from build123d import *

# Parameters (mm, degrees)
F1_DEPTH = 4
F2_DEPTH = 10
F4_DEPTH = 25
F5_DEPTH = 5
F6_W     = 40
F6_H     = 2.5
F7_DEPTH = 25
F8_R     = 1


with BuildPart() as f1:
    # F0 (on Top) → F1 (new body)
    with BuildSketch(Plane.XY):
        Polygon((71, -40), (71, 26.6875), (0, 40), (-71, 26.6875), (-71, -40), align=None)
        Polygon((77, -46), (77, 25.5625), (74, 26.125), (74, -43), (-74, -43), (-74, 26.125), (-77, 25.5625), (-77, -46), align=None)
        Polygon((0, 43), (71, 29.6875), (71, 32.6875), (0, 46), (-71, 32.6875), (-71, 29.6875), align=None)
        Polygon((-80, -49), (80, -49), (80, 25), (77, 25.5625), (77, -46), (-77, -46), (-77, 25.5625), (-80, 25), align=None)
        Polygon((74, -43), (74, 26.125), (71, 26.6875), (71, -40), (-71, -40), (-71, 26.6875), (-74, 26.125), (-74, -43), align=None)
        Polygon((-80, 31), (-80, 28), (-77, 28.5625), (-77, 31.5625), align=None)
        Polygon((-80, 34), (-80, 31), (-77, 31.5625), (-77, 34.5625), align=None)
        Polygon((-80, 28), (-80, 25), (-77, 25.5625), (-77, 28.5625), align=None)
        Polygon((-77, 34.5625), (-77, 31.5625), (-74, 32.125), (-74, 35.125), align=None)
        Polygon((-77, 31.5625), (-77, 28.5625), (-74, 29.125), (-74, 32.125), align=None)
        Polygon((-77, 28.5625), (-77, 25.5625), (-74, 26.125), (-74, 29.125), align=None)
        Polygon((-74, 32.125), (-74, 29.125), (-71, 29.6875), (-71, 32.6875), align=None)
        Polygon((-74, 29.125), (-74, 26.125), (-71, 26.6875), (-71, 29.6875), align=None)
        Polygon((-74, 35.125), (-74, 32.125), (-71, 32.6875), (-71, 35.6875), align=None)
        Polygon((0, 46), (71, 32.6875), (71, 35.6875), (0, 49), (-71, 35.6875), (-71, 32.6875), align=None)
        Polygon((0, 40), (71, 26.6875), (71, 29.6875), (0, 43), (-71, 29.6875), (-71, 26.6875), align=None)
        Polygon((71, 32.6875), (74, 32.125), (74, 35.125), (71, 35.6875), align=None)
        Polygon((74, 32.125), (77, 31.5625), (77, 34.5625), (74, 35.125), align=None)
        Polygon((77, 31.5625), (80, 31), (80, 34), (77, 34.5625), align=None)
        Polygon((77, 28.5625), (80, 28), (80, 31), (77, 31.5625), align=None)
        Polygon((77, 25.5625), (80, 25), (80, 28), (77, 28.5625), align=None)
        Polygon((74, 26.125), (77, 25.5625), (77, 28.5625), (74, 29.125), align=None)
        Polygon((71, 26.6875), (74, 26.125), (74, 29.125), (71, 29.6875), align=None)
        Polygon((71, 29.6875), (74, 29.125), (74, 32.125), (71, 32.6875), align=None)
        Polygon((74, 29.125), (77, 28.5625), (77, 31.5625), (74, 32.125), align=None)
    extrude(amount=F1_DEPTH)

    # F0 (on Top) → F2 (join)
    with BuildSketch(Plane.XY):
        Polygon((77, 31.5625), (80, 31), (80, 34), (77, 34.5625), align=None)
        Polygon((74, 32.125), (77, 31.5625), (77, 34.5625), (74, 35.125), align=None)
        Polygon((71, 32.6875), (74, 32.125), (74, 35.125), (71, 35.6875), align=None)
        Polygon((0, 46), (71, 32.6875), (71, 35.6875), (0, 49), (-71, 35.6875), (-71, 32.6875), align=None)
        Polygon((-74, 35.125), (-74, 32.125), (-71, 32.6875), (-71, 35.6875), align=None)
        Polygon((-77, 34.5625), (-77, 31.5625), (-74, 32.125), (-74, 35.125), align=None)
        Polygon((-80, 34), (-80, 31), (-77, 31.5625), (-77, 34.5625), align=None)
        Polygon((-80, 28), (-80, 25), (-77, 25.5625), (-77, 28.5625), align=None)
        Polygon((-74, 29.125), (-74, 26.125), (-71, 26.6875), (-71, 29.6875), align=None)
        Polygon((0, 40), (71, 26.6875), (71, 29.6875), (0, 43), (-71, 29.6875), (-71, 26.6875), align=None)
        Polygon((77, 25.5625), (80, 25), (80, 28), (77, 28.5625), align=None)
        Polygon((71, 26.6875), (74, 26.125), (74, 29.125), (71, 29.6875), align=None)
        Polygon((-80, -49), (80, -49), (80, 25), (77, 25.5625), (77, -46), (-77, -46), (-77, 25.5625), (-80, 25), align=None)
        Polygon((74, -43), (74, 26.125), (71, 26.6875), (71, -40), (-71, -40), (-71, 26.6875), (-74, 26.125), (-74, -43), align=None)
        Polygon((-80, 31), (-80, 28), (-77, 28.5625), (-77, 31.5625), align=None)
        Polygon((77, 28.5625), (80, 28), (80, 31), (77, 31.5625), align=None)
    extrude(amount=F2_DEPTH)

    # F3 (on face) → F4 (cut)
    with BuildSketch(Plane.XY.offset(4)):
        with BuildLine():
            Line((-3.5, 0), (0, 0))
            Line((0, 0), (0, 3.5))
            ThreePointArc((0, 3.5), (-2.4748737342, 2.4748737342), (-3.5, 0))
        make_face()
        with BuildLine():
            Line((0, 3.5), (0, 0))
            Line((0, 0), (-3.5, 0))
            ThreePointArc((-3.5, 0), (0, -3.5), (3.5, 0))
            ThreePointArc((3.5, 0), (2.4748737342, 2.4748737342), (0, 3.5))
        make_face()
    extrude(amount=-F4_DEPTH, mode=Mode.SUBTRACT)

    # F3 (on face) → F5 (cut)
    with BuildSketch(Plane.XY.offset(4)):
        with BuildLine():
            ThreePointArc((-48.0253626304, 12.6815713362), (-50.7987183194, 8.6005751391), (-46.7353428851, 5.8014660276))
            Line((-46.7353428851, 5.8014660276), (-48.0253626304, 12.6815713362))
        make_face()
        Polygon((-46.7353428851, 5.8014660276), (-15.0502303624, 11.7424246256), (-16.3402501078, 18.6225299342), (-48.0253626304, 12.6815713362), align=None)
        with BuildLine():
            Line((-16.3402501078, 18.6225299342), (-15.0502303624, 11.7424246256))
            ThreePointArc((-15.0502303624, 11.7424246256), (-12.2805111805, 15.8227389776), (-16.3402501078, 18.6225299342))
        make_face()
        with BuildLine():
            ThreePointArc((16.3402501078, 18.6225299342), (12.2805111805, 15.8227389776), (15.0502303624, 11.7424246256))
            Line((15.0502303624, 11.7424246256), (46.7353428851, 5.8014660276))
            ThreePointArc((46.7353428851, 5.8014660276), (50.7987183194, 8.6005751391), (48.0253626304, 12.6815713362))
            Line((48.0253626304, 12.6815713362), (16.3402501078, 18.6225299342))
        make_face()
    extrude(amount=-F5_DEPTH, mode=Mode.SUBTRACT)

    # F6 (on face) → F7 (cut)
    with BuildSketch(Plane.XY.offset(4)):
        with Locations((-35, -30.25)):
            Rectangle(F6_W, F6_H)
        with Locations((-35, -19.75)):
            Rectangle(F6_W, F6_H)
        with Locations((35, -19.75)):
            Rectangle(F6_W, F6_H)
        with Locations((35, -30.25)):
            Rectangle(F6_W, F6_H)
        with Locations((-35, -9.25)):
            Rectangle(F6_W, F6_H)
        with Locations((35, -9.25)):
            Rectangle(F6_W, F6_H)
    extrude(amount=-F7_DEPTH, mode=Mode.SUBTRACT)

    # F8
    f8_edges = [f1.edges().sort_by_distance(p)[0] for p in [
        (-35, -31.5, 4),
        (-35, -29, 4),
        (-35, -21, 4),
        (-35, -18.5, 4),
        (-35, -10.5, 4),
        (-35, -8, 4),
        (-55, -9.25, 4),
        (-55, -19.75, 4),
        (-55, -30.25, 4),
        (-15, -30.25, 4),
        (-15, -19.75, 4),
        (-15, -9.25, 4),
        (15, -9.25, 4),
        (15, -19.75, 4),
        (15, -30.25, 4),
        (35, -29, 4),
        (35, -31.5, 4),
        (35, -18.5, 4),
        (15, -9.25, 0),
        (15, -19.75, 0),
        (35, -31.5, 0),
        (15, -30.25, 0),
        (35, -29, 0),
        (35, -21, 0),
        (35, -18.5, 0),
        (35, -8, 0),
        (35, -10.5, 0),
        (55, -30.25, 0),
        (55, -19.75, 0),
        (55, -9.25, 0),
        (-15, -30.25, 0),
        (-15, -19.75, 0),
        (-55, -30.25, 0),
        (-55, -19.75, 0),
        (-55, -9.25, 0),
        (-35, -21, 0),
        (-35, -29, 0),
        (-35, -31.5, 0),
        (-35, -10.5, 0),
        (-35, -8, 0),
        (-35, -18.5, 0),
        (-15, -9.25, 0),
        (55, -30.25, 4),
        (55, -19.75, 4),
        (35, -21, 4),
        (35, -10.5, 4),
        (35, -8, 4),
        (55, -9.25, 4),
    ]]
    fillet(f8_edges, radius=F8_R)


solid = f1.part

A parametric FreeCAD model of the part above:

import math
import FreeCAD as App
import Part
import Sketcher


def edges_at(feature, points):
    """Names of the edges that pass closest to the given points."""
    edges = feature.Shape.Edges
    near = lambda p: min(range(len(edges)), key=lambda i: edges[i].distToShape(Part.Vertex(*p))[0])
    return sorted({f"Edge{near(p) + 1}" for p in points})


def add_polygon(sketch, points):
    """Adds a closed chain of lines whose ends are joined by coincident constraints."""
    first, n = sketch.GeometryCount, len(points)
    for a, b in zip(points, points[1:] + points[:1]):
        sketch.addGeometry(Part.LineSegment(App.Vector(*a, 0), App.Vector(*b, 0)), False)
    for i in range(n):
        sketch.addConstraint(Sketcher.Constraint("Coincident", first + i, 2, first + (i + 1) % n, 1))

doc = App.newDocument("Part")
body = doc.addObject("PartDesign::Body", "Body")

sketch1 = body.newObject("Sketcher::SketchObject", "Sketch")
sketch1.AttachmentSupport = (doc.getObject("XY_Plane"), [""])
sketch1.MapMode = "FlatFace"
add_polygon(sketch1, [(0, 49), (-80, 34), (-80, -49), (80, -49), (80, 34)])
sketch1.addConstraint([
    Sketcher.Constraint("Vertical", 1),
    Sketcher.Constraint("Horizontal", 2),
    Sketcher.Constraint("Vertical", 3),
    Sketcher.Constraint("Symmetric", 0, 2, 3, 2, -2),
    Sketcher.Constraint("PointOnObject", 4, 2, -2),
    Sketcher.Constraint("DistanceX", 2, 1, 2, 2, 160.0),
    Sketcher.Constraint("DistanceY", 1, 2, 1, 1, 83.0),
    Sketcher.Constraint("DistanceY", -1, 1, 0, 2, 34.0),
    Sketcher.Constraint("DistanceY", -1, 1, 4, 2, 49.0),
])
pad1 = body.newObject("PartDesign::Pad", "Pad")
pad1.Profile = sketch1
pad1.Length = 4

sketch2 = body.newObject("Sketcher::SketchObject", "Sketch001")
sketch2.AttachmentSupport = (doc.getObject("XY_Plane"), [""])
sketch2.MapMode = "FlatFace"
add_polygon(sketch2, [(80, 34), (0, 49), (-80, 34), (-80, -49), (80, -49)])
add_polygon(sketch2, [(77, -46), (-77, -46), (-77, 32), (0, 46), (77, 32)])
add_polygon(sketch2, [(-74, 29), (-74, -43), (74, -43), (74, 29), (0, 43)])
add_polygon(sketch2, [(-71, 27), (0, 40), (71, 27), (71, -40), (-71, -40)])
sketch2.addConstraint([
    Sketcher.Constraint("Vertical", 2),
    Sketcher.Constraint("Horizontal", 3),
    Sketcher.Constraint("Vertical", 4),
    Sketcher.Constraint("Horizontal", 5),
    Sketcher.Constraint("Vertical", 6),
    Sketcher.Constraint("Vertical", 9),
    Sketcher.Constraint("Vertical", 10),
    Sketcher.Constraint("Horizontal", 11),
    Sketcher.Constraint("Vertical", 12),
    Sketcher.Constraint("Vertical", 17),
    Sketcher.Constraint("Horizontal", 18),
    Sketcher.Constraint("Vertical", 19),
    Sketcher.Constraint("Symmetric", 1, 2, 4, 2, -2),
    Sketcher.Constraint("Symmetric", 6, 2, 8, 2, -2),
    Sketcher.Constraint("Symmetric", 12, 2, 14, 2, -2),
    Sketcher.Constraint("Symmetric", 16, 2, 19, 2, -2),
    Sketcher.Constraint("PointOnObject", 0, 2, -2),
    Sketcher.Constraint("PointOnObject", 7, 2, -2),
    Sketcher.Constraint("PointOnObject", 13, 2, -2),
    Sketcher.Constraint("PointOnObject", 15, 2, -2),
    Sketcher.Constraint("Parallel", 1, 7),
    Sketcher.Constraint("Parallel", 8, 13),
    Sketcher.Constraint("Parallel", 14, 15),
    Sketcher.Constraint("DistanceX", 3, 1, 3, 2, 160.0),
    Sketcher.Constraint("DistanceX", 5, 2, 5, 1, 154.0),
    Sketcher.Constraint("DistanceX", 11, 1, 11, 2, 148.0),
    Sketcher.Constraint("DistanceX", 18, 2, 18, 1, 142.0),
    Sketcher.Constraint("DistanceY", 2, 2, 2, 1, 83.0),
    Sketcher.Constraint("DistanceY", -1, 1, 0, 2, 49.0),
    Sketcher.Constraint("DistanceY", -1, 1, 1, 2, 34.0),
    Sketcher.Constraint("DistanceY", 5, 2, -1, 1, 46.0),
    Sketcher.Constraint("DistanceY", -1, 1, 7, 2, 46.0),
    Sketcher.Constraint("DistanceY", 10, 2, -1, 1, 43.0),
    Sketcher.Constraint("DistanceY", -1, 1, 13, 2, 43.0),
    Sketcher.Constraint("DistanceY", -1, 1, 15, 2, 40.0),
    Sketcher.Constraint("DistanceY", 17, 2, -1, 1, 40.0),
])
pad2 = body.newObject("PartDesign::Pad", "Pad001")
pad2.Profile = sketch2
pad2.Length = 10

sketch3 = body.newObject("Sketcher::SketchObject", "Sketch002")
sketch3.AttachmentSupport = (doc.getObject("XY_Plane"), [""])
sketch3.MapMode = "FlatFace"
sketch3.AttachmentOffset = App.Placement(App.Vector(0, 0, 4), App.Rotation())
sketch3.addGeometry([
    Part.ArcOfCircle(Part.Circle(App.Vector(0, 0, 0), App.Vector(0, 0, 1), 3.5), math.radians(90), math.radians(180)),
    Part.ArcOfCircle(Part.Circle(App.Vector(0, 0, 0), App.Vector(0, 0, 1), 3.5), math.radians(180), math.radians(360)),
    Part.ArcOfCircle(Part.Circle(App.Vector(0, 0, 0), App.Vector(0, 0, 1), 3.5), math.radians(0), math.radians(90)),
], False)
sketch3.addConstraint([
    Sketcher.Constraint("Tangent", 0, 2, 1, 1),
    Sketcher.Constraint("Tangent", 1, 2, 2, 1),
    Sketcher.Constraint("Tangent", 2, 2, 0, 1),
    Sketcher.Constraint("Coincident", 0, 3, -1, 1),
    Sketcher.Constraint("PointOnObject", 0, 2, -1),
    Sketcher.Constraint("PointOnObject", 1, 2, -1),
    Sketcher.Constraint("PointOnObject", 2, 2, -2),
    Sketcher.Constraint("Radius", 0, 3.5),
])
pocket1 = body.newObject("PartDesign::Pocket", "Pocket")
pocket1.Profile = sketch3
pocket1.Length = 25

sketch4 = body.newObject("Sketcher::SketchObject", "Sketch003")
sketch4.AttachmentSupport = (doc.getObject("XY_Plane"), [""])
sketch4.MapMode = "FlatFace"
sketch4.AttachmentOffset = App.Placement(App.Vector(0, 0, 4), App.Rotation())
sketch4.addGeometry([
    Part.ArcOfCircle(Part.Circle(App.Vector(-47.358597, 9.245598, 0), App.Vector(0, 0, 1), 3.50007), math.radians(100.982006), math.radians(280.257305)),
    Part.LineSegment(App.Vector(-46.735343, 5.801466, 0), App.Vector(-15.05023, 11.742425, 0)),
    Part.ArcOfCircle(Part.Circle(App.Vector(-15.720658, 15.177711, 0), App.Vector(0, 0, 1), 3.500096), math.radians(-78.957011), math.radians(100.196322)),
    Part.LineSegment(App.Vector(-16.34025, 18.62253, 0), App.Vector(-48.025363, 12.681571, 0)),
    Part.ArcOfCircle(Part.Circle(App.Vector(15.720658, 15.177711, 0), App.Vector(0, 0, 1), 3.500096), math.radians(79.803678), math.radians(258.957011)),
    Part.LineSegment(App.Vector(15.05023, 11.742425, 0), App.Vector(46.735343, 5.801466, 0)),
    Part.ArcOfCircle(Part.Circle(App.Vector(47.358597, 9.245598, 0), App.Vector(0, 0, 1), 3.50007), math.radians(-100.257305), math.radians(79.017994)),
    Part.LineSegment(App.Vector(48.025363, 12.681571, 0), App.Vector(16.34025, 18.62253, 0)),
], False)
sketch4.addConstraint([
    Sketcher.Constraint("Coincident", 0, 2, 1, 1),
    Sketcher.Constraint("Coincident", 1, 2, 2, 1),
    Sketcher.Constraint("Coincident", 2, 2, 3, 1),
    Sketcher.Constraint("Coincident", 3, 2, 0, 1),
    Sketcher.Constraint("Coincident", 4, 2, 5, 1),
    Sketcher.Constraint("Coincident", 5, 2, 6, 1),
    Sketcher.Constraint("Coincident", 6, 2, 7, 1),
    Sketcher.Constraint("Coincident", 7, 2, 4, 1),
    Sketcher.Constraint("Radius", 0, 3.50007),
    Sketcher.Constraint("Radius", 6, 3.50007),
    Sketcher.Constraint("Radius", 2, 3.500096),
    Sketcher.Constraint("Radius", 4, 3.500096),
    Sketcher.Constraint("DistanceX", 0, 2, 4, 3, 62.456001),
    Sketcher.Constraint("DistanceX", 2, 3, 5, 2, 62.456001),
    Sketcher.Constraint("DistanceY", -1, 1, 2, 3, 15.177711),
    Sketcher.Constraint("DistanceY", -1, 1, 4, 3, 15.177711),
    Sketcher.Constraint("DistanceX", 1, 2, -1, 1, 15.05023),
    Sketcher.Constraint("DistanceX", 2, 2, -1, 1, 16.34025),
    Sketcher.Constraint("DistanceY", -1, 1, 2, 2, 18.62253),
    Sketcher.Constraint("DistanceY", -1, 1, 3, 2, 12.681571),
    Sketcher.Constraint("DistanceX", -1, 1, 4, 2, 15.05023),
    Sketcher.Constraint("DistanceY", -1, 1, 6, 2, 12.681571),
    Sketcher.Constraint("DistanceX", -1, 1, 7, 2, 16.34025),
    Sketcher.Constraint("DistanceY", -1, 1, 7, 2, 18.62253),
    Sketcher.Constraint("DistanceX", 0, 3, 2, 3, 31.637939),
    Sketcher.Constraint("DistanceX", 4, 3, 6, 3, 31.637939),
    Sketcher.Constraint("DistanceY", 0, 2, 6, 3, 3.444132),
    Sketcher.Constraint("DistanceY", 0, 2, 1, 2, 5.940959),
])
pocket2 = body.newObject("PartDesign::Pocket", "Pocket001")
pocket2.Profile = sketch4
pocket2.Length = 5

sketch5 = body.newObject("Sketcher::SketchObject", "Sketch004")
sketch5.AttachmentSupport = (doc.getObject("XY_Plane"), [""])
sketch5.MapMode = "FlatFace"
sketch5.AttachmentOffset = App.Placement(App.Vector(0, 0, 4), App.Rotation())
add_polygon(sketch5, [(-55, -29), (-55, -31.5), (-15, -31.5), (-15, -29)])
add_polygon(sketch5, [(-55, -18.5), (-55, -21), (-15, -21), (-15, -18.5)])
add_polygon(sketch5, [(15, -18.5), (15, -21), (55, -21), (55, -18.5)])
add_polygon(sketch5, [(15, -29), (15, -31.5), (55, -31.5), (55, -29)])
add_polygon(sketch5, [(-55, -8), (-55, -10.5), (-15, -10.5), (-15, -8)])
add_polygon(sketch5, [(15, -8), (15, -10.5), (55, -10.5), (55, -8)])
sketch5.addConstraint([
    Sketcher.Constraint("Vertical", 0),
    Sketcher.Constraint("Horizontal", 1),
    Sketcher.Constraint("Vertical", 2),
    Sketcher.Constraint("Horizontal", 3),
    Sketcher.Constraint("Vertical", 4),
    Sketcher.Constraint("Horizontal", 5),
    Sketcher.Constraint("Vertical", 6),
    Sketcher.Constraint("Horizontal", 7),
    Sketcher.Constraint("Vertical", 8),
    Sketcher.Constraint("Horizontal", 9),
    Sketcher.Constraint("Vertical", 10),
    Sketcher.Constraint("Horizontal", 11),
    Sketcher.Constraint("Vertical", 12),
    Sketcher.Constraint("Horizontal", 13),
    Sketcher.Constraint("Vertical", 14),
    Sketcher.Constraint("Horizontal", 15),
    Sketcher.Constraint("Vertical", 16),
    Sketcher.Constraint("Horizontal", 17),
    Sketcher.Constraint("Vertical", 18),
    Sketcher.Constraint("Horizontal", 19),
    Sketcher.Constraint("Vertical", 20),
    Sketcher.Constraint("Horizontal", 21),
    Sketcher.Constraint("Vertical", 22),
    Sketcher.Constraint("Horizontal", 23),
    Sketcher.Constraint("Symmetric", 5, 2, 8, 2, -2),
    Sketcher.Constraint("Symmetric", 7, 2, 10, 2, -2),
    Sketcher.Constraint("Symmetric", 1, 2, 12, 2, -2),
    Sketcher.Constraint("Symmetric", 3, 2, 14, 2, -2),
    Sketcher.Constraint("Symmetric", 17, 2, 20, 2, -2),
    Sketcher.Constraint("Symmetric", 19, 2, 22, 2, -2),
    Sketcher.Constraint("Vertical", 3, 2, 4, 2),
    Sketcher.Constraint("Vertical", 2, 2, 5, 2),
    Sketcher.Constraint("Vertical", 7, 2, 16, 2),
    Sketcher.Constraint("Vertical", 6, 2, 17, 2),
    Sketcher.Constraint("Equal", 2, 4),
    Sketcher.Constraint("Equal", 14, 16),
    Sketcher.Constraint("DistanceX", 1, 1, 1, 2, 40.0),
    Sketcher.Constraint("DistanceY", 0, 2, 0, 1, 2.5),
    Sketcher.Constraint("DistanceX", 0, 2, -1, 1, 55.0),
    Sketcher.Constraint("DistanceY", 2, 2, -1, 1, 29.0),
    Sketcher.Constraint("DistanceY", 4, 2, -1, 1, 21.0),
    Sketcher.Constraint("DistanceY", 18, 2, -1, 1, 8.0),
])
pocket3 = body.newObject("PartDesign::Pocket", "Pocket002")
pocket3.Profile = sketch5
pocket3.Length = 25
doc.recompute()

fillet = body.newObject("PartDesign::Fillet", "Fillet")
fillet.Base = (pocket3, edges_at(pocket3, [
    (-35, -31.5, 4),
    (-35, -29, 4),
    (-35, -21, 4),
    (-35, -18.5, 4),
    (-35, -10.5, 4),
    (-35, -8, 4),
    (-55, -9.25, 4),
    (-55, -19.75, 4),
    (-55, -30.25, 4),
    (-15, -30.25, 4),
    (-15, -19.75, 4),
    (-15, -9.25, 4),
    (15, -9.25, 4),
    (15, -19.75, 4),
    (15, -30.25, 4),
    (35, -29, 4),
    (35, -31.5, 4),
    (35, -18.5, 4),
    (15, -9.25, 0),
    (15, -19.75, 0),
    (35, -31.5, 0),
    (15, -30.25, 0),
    (35, -29, 0),
    (35, -21, 0),
    (35, -18.5, 0),
    (35, -8, 0),
    (35, -10.5, 0),
    (55, -30.25, 0),
    (55, -19.75, 0),
    (55, -9.25, 0),
    (-15, -30.25, 0),
    (-15, -19.75, 0),
    (-55, -30.25, 0),
    (-55, -19.75, 0),
    (-55, -9.25, 0),
    (-35, -21, 0),
    (-35, -29, 0),
    (-35, -31.5, 0),
    (-35, -10.5, 0),
    (-35, -8, 0),
    (-35, -18.5, 0),
    (-15, -9.25, 0),
    (55, -30.25, 4),
    (55, -19.75, 4),
    (35, -21, 4),
    (35, -10.5, 4),
    (35, -8, 4),
    (55, -9.25, 4),
]))
fillet.Radius = 1

doc.recompute()
